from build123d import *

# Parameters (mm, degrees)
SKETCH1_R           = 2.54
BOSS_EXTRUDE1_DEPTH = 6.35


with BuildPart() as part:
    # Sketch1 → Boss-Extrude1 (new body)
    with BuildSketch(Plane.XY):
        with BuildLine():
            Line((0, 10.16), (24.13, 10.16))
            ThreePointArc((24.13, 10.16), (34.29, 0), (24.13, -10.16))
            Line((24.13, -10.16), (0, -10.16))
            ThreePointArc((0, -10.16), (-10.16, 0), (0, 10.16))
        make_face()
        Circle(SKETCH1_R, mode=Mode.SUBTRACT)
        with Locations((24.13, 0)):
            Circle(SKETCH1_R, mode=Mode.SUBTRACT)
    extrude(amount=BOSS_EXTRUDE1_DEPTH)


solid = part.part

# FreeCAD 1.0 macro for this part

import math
import FreeCAD as App
import Part
import Sketcher
from FreeCAD import Vector
Q = App.Units.Quantity

doc = App.newDocument("Part")
body = doc.addObject("PartDesign::Body", "Body")

sketch1 = body.newObject("Sketcher::SketchObject", "Sketch")
sketch1.AttachmentSupport = (doc.getObject("XY_Plane"), [""])
sketch1.MapMode = "FlatFace"
sketch1.addGeometry(Part.LineSegment(Vector(24.1, 10.2, 0), Vector(0, 10.2, 0)), False)
sketch1.addGeometry(Part.ArcOfCircle(Part.Circle(Vector(0, 0, 0), Vector(0, 0, 1), 10.2), math.radians(90), math.radians(270)), False)
sketch1.addGeometry(Part.LineSegment(Vector(0, -10.2, 0), Vector(24.1, -10.2, 0)), False)
sketch1.addGeometry(Part.ArcOfCircle(Part.Circle(Vector(24.1, 0, 0), Vector(0, 0, 1), 10.2), math.radians(-90), math.radians(90)), False)
sketch1.addGeometry(Part.Circle(Vector(24.1, 0, 0), Vector(0, 0, 1), 2.5), False)
sketch1.addGeometry(Part.Circle(Vector(0, 0, 0), Vector(0, 0, 1), 2.5), False)
sketch1.addConstraint(Sketcher.Constraint("Tangent", 0, 2, 1, 1))
sketch1.addConstraint(Sketcher.Constraint("Tangent", 1, 2, 2, 1))
sketch1.addConstraint(Sketcher.Constraint("Tangent", 2, 2, 3, 1))
sketch1.addConstraint(Sketcher.Constraint("Tangent", 3, 2, 0, 1))
sketch1.addConstraint(Sketcher.Constraint("Horizontal", 0))
sketch1.addConstraint(Sketcher.Constraint("Horizontal", 2))
sketch1.addConstraint(Sketcher.Constraint("Coincident", 1, 3, -1, 1))
sketch1.addConstraint(Sketcher.Constraint("Coincident", 5, 3, -1, 1))
sketch1.addConstraint(Sketcher.Constraint("Coincident", 4, 3, 3, 3))
sketch1.addConstraint(Sketcher.Constraint("Equal", 4, 5))
sketch1.addConstraint(Sketcher.Constraint("Diameter", 4, Q("0.2 in")))
sketch1.addConstraint(Sketcher.Constraint("Radius", 1, Q("0.4 in")))
sketch1.addConstraint(Sketcher.Constraint("DistanceX", 0, 2, 0, 1, Q("0.95 in")))
pad1 = body.newObject("PartDesign::Pad", "Pad")
pad1.Profile = sketch1
pad1.Length = Q("0.25 in")

doc.recompute()
